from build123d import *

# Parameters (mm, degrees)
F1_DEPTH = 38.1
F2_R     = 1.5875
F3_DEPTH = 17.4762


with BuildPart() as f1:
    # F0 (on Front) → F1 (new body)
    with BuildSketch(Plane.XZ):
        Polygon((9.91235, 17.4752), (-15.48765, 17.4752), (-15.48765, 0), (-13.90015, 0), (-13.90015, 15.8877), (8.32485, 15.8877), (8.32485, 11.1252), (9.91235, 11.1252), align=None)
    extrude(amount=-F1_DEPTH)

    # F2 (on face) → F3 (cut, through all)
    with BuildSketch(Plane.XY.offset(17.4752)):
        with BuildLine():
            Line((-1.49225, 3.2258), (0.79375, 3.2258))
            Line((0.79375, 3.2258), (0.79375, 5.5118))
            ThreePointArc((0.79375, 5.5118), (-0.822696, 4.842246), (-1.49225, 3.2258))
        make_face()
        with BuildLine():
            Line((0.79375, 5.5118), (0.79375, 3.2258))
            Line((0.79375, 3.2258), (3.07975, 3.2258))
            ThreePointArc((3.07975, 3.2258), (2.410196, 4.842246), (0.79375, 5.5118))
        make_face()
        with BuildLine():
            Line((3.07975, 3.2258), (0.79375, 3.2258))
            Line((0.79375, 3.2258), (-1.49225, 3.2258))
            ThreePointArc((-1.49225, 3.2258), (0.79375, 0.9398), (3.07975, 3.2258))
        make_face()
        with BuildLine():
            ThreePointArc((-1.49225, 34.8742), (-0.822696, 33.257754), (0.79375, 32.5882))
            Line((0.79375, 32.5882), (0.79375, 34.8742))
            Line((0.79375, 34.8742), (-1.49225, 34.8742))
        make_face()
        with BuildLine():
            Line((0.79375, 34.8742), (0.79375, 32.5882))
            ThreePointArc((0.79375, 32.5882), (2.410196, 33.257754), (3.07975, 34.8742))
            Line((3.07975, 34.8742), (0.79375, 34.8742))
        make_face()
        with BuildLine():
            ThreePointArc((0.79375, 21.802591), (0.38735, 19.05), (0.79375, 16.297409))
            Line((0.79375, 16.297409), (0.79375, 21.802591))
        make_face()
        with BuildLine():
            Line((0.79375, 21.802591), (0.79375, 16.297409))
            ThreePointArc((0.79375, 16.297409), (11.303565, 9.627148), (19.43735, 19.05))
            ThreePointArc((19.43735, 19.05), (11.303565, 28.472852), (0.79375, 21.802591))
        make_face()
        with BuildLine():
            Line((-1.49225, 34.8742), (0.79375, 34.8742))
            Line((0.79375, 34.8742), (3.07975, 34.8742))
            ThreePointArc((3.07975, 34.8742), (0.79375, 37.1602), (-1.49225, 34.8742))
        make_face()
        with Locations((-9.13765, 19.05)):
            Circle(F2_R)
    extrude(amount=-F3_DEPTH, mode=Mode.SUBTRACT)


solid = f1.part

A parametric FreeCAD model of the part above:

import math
import FreeCAD as App
import Part
import Sketcher
Q = App.Units.Quantity

doc = App.newDocument("Part")
body = doc.addObject("PartDesign::Body", "Body")

# Sketch on XZ plane
sketch1 = body.newObject("Sketcher::SketchObject", "Sketch")
sketch1.AttachmentSupport = (doc.getObject("XZ_Plane"), [""])
sketch1.MapMode = "FlatFace"
sketch1.addGeometry([
    Part.LineSegment(App.Vector(9.9, 17.5, 0), App.Vector(-15.5, 17.5, 0)),  # 0
    Part.LineSegment(App.Vector(-15.5, 17.5, 0), App.Vector(-15.5, 0, 0)),  # 1
    Part.LineSegment(App.Vector(-15.5, 0, 0), App.Vector(-13.9, 0, 0)),  # 2
    Part.LineSegment(App.Vector(-13.9, 0, 0), App.Vector(-13.9, 15.9, 0)),  # 3
    Part.LineSegment(App.Vector(-13.9, 15.9, 0), App.Vector(8.3, 15.9, 0)),  # 4
    Part.LineSegment(App.Vector(8.3, 15.9, 0), App.Vector(8.3, 11.1, 0)),  # 5
    Part.LineSegment(App.Vector(8.3, 11.1, 0), App.Vector(9.9, 11.1, 0)),  # 6
    Part.LineSegment(App.Vector(9.9, 11.1, 0), App.Vector(9.9, 17.5, 0)),  # 7
], False)
sketch1.addConstraint([
    Sketcher.Constraint("Coincident", 0, 2, 1, 1),
    Sketcher.Constraint("Coincident", 1, 2, 2, 1),
    Sketcher.Constraint("Coincident", 2, 2, 3, 1),
    Sketcher.Constraint("Coincident", 3, 2, 4, 1),
    Sketcher.Constraint("Coincident", 4, 2, 5, 1),
    Sketcher.Constraint("Coincident", 5, 2, 6, 1),
    Sketcher.Constraint("Coincident", 6, 2, 7, 1),
    Sketcher.Constraint("Coincident", 7, 2, 0, 1),
    Sketcher.Constraint("Horizontal", 0),
    Sketcher.Constraint("Vertical", 1),
    Sketcher.Constraint("Horizontal", 2),
    Sketcher.Constraint("Vertical", 3),
    Sketcher.Constraint("Horizontal", 4),
    Sketcher.Constraint("Vertical", 5),
    Sketcher.Constraint("Horizontal", 6),
    Sketcher.Constraint("Vertical", 7),
    Sketcher.Constraint("PointOnObject", 1, 2, -1),
    Sketcher.Constraint("Equal", 2, 6),
    Sketcher.Constraint("DistanceX", 0, 2, 0, 1, Q("1 in")),
    Sketcher.Constraint("DistanceY", 7, 1, 7, 2, Q("0.25 in")),
    Sketcher.Constraint("DistanceX", 2, 1, 2, 2, Q("0.0625 in")),
    Sketcher.Constraint("DistanceY", 1, 2, 1, 1, Q("0.688 in")),
    Sketcher.Constraint("DistanceY", 5, 2, 5, 1, Q("0.1875 in")),
    Sketcher.Constraint("DistanceX", 0, 2, -1, 1, Q("15.48765 mm")),
])
pad1 = body.newObject("PartDesign::Pad", "Pad")
pad1.Profile = sketch1
pad1.Length = Q("1.5 in")
pad1.Reversed = True

# Sketch on XY plane
sketch2 = body.newObject("Sketcher::SketchObject", "Sketch001")
sketch2.AttachmentSupport = (doc.getObject("XY_Plane"), [""])
sketch2.MapMode = "FlatFace"
sketch2.AttachmentOffset = App.Placement(App.Vector(0, 0, 0.688 * 25.4), App.Rotation())
sketch2.addGeometry([
    Part.ArcOfCircle(Part.Circle(App.Vector(0.8, 3.2, 0), App.Vector(0, 0, 1), 2.3), math.radians(0), math.radians(90)),  # 0
    Part.ArcOfCircle(Part.Circle(App.Vector(0.8, 3.2, 0), App.Vector(0, 0, 1), 2.3), math.radians(90), math.radians(180)),  # 1
    Part.ArcOfCircle(Part.Circle(App.Vector(0.8, 3.2, 0), App.Vector(0, 0, 1), 2.3), math.radians(180), math.radians(360)),  # 2
    Part.ArcOfCircle(Part.Circle(App.Vector(0.8, 34.9, 0), App.Vector(0, 0, 1), 2.3), math.radians(-180), math.radians(-90)),  # 3
    Part.ArcOfCircle(Part.Circle(App.Vector(0.8, 34.9, 0), App.Vector(0, 0, 1), 2.3), math.radians(-90), math.radians(0)),  # 4
    Part.ArcOfCircle(Part.Circle(App.Vector(0.8, 34.9, 0), App.Vector(0, 0, 1), 2.3), math.radians(0), math.radians(180)),  # 5
    Part.ArcOfCircle(Part.Circle(App.Vector(9.9, 19.1, 0), App.Vector(0, 0, 1), 9.5), math.radians(163), math.radians(197)),  # 6
    Part.ArcOfCircle(Part.Circle(App.Vector(9.9, 19.1, 0), App.Vector(0, 0, 1), 9.5), math.radians(-163), math.radians(0)),  # 7
    Part.ArcOfCircle(Part.Circle(App.Vector(9.9, 19, 0), App.Vector(0, 0, 1), 9.5), math.radians(0), math.radians(163)),  # 8
    Part.Circle(App.Vector(-9.1, 19.1, 0), App.Vector(0, 0, 1), 1.6),  # 9
], False)
sketch2.addConstraint([
    Sketcher.Constraint("Tangent", 0, 2, 1, 1),
    Sketcher.Constraint("Tangent", 1, 2, 2, 1),
    Sketcher.Constraint("Tangent", 2, 2, 0, 1),
    Sketcher.Constraint("Tangent", 3, 2, 4, 1),
    Sketcher.Constraint("Tangent", 4, 2, 5, 1),
    Sketcher.Constraint("Tangent", 5, 2, 3, 1),
    Sketcher.Constraint("Tangent", 6, 2, 7, 1),
    Sketcher.Constraint("Tangent", 7, 2, 8, 1),
    Sketcher.Constraint("Tangent", 8, 2, 6, 1),
    Sketcher.Constraint("Equal", 2, 3),
    Sketcher.Constraint("Horizontal", 8, 3, 9, 3),
    Sketcher.Constraint("Horizontal", 2, 3, 1, 2),
    Sketcher.Constraint("Horizontal", 1, 2, 2, 2),
    Sketcher.Constraint("Horizontal", 5, 3, 4, 2),
    Sketcher.Constraint("Horizontal", 4, 2, 5, 2),
    Sketcher.Constraint("Horizontal", 9, 3, 7, 2),
    Sketcher.Constraint("Vertical", 2, 3, 3, 3),
    Sketcher.Constraint("Vertical", 5, 3, 0, 2),
    Sketcher.Constraint("Vertical", 0, 2, 3, 2),
    Sketcher.Constraint("Vertical", 3, 2, 6, 2),
    Sketcher.Constraint("Vertical", 6, 2, 8, 2),
    Sketcher.Constraint("Radius", 0, Q("0.09 in")),
    Sketcher.Constraint("Diameter", 9, Q("0.125 in")),
    Sketcher.Constraint("Radius", 6, Q("0.3749999 in")),
    Sketcher.Constraint("DistanceY", -1, 1, 6, 3, Q("0.75 in")),
    Sketcher.Constraint("DistanceX", -1, 1, 0, 3, Q("0.03125 in")),
    Sketcher.Constraint("DistanceY", -1, 1, 0, 3, Q("0.127 in")),
    Sketcher.Constraint("DistanceY", -1, 1, 3, 3, Q("1.373 in")),
    Sketcher.Constraint("DistanceX", 2, 3, 6, 3, Q("0.3589999 in")),
    Sketcher.Constraint("DistanceX", 9, 3, 2, 3, Q("0.391 in")),
])
pocket1 = body.newObject("PartDesign::Pocket", "Pocket")
pocket1.Profile = sketch2
pocket1.Type = "ThroughAll"

doc.recompute()
